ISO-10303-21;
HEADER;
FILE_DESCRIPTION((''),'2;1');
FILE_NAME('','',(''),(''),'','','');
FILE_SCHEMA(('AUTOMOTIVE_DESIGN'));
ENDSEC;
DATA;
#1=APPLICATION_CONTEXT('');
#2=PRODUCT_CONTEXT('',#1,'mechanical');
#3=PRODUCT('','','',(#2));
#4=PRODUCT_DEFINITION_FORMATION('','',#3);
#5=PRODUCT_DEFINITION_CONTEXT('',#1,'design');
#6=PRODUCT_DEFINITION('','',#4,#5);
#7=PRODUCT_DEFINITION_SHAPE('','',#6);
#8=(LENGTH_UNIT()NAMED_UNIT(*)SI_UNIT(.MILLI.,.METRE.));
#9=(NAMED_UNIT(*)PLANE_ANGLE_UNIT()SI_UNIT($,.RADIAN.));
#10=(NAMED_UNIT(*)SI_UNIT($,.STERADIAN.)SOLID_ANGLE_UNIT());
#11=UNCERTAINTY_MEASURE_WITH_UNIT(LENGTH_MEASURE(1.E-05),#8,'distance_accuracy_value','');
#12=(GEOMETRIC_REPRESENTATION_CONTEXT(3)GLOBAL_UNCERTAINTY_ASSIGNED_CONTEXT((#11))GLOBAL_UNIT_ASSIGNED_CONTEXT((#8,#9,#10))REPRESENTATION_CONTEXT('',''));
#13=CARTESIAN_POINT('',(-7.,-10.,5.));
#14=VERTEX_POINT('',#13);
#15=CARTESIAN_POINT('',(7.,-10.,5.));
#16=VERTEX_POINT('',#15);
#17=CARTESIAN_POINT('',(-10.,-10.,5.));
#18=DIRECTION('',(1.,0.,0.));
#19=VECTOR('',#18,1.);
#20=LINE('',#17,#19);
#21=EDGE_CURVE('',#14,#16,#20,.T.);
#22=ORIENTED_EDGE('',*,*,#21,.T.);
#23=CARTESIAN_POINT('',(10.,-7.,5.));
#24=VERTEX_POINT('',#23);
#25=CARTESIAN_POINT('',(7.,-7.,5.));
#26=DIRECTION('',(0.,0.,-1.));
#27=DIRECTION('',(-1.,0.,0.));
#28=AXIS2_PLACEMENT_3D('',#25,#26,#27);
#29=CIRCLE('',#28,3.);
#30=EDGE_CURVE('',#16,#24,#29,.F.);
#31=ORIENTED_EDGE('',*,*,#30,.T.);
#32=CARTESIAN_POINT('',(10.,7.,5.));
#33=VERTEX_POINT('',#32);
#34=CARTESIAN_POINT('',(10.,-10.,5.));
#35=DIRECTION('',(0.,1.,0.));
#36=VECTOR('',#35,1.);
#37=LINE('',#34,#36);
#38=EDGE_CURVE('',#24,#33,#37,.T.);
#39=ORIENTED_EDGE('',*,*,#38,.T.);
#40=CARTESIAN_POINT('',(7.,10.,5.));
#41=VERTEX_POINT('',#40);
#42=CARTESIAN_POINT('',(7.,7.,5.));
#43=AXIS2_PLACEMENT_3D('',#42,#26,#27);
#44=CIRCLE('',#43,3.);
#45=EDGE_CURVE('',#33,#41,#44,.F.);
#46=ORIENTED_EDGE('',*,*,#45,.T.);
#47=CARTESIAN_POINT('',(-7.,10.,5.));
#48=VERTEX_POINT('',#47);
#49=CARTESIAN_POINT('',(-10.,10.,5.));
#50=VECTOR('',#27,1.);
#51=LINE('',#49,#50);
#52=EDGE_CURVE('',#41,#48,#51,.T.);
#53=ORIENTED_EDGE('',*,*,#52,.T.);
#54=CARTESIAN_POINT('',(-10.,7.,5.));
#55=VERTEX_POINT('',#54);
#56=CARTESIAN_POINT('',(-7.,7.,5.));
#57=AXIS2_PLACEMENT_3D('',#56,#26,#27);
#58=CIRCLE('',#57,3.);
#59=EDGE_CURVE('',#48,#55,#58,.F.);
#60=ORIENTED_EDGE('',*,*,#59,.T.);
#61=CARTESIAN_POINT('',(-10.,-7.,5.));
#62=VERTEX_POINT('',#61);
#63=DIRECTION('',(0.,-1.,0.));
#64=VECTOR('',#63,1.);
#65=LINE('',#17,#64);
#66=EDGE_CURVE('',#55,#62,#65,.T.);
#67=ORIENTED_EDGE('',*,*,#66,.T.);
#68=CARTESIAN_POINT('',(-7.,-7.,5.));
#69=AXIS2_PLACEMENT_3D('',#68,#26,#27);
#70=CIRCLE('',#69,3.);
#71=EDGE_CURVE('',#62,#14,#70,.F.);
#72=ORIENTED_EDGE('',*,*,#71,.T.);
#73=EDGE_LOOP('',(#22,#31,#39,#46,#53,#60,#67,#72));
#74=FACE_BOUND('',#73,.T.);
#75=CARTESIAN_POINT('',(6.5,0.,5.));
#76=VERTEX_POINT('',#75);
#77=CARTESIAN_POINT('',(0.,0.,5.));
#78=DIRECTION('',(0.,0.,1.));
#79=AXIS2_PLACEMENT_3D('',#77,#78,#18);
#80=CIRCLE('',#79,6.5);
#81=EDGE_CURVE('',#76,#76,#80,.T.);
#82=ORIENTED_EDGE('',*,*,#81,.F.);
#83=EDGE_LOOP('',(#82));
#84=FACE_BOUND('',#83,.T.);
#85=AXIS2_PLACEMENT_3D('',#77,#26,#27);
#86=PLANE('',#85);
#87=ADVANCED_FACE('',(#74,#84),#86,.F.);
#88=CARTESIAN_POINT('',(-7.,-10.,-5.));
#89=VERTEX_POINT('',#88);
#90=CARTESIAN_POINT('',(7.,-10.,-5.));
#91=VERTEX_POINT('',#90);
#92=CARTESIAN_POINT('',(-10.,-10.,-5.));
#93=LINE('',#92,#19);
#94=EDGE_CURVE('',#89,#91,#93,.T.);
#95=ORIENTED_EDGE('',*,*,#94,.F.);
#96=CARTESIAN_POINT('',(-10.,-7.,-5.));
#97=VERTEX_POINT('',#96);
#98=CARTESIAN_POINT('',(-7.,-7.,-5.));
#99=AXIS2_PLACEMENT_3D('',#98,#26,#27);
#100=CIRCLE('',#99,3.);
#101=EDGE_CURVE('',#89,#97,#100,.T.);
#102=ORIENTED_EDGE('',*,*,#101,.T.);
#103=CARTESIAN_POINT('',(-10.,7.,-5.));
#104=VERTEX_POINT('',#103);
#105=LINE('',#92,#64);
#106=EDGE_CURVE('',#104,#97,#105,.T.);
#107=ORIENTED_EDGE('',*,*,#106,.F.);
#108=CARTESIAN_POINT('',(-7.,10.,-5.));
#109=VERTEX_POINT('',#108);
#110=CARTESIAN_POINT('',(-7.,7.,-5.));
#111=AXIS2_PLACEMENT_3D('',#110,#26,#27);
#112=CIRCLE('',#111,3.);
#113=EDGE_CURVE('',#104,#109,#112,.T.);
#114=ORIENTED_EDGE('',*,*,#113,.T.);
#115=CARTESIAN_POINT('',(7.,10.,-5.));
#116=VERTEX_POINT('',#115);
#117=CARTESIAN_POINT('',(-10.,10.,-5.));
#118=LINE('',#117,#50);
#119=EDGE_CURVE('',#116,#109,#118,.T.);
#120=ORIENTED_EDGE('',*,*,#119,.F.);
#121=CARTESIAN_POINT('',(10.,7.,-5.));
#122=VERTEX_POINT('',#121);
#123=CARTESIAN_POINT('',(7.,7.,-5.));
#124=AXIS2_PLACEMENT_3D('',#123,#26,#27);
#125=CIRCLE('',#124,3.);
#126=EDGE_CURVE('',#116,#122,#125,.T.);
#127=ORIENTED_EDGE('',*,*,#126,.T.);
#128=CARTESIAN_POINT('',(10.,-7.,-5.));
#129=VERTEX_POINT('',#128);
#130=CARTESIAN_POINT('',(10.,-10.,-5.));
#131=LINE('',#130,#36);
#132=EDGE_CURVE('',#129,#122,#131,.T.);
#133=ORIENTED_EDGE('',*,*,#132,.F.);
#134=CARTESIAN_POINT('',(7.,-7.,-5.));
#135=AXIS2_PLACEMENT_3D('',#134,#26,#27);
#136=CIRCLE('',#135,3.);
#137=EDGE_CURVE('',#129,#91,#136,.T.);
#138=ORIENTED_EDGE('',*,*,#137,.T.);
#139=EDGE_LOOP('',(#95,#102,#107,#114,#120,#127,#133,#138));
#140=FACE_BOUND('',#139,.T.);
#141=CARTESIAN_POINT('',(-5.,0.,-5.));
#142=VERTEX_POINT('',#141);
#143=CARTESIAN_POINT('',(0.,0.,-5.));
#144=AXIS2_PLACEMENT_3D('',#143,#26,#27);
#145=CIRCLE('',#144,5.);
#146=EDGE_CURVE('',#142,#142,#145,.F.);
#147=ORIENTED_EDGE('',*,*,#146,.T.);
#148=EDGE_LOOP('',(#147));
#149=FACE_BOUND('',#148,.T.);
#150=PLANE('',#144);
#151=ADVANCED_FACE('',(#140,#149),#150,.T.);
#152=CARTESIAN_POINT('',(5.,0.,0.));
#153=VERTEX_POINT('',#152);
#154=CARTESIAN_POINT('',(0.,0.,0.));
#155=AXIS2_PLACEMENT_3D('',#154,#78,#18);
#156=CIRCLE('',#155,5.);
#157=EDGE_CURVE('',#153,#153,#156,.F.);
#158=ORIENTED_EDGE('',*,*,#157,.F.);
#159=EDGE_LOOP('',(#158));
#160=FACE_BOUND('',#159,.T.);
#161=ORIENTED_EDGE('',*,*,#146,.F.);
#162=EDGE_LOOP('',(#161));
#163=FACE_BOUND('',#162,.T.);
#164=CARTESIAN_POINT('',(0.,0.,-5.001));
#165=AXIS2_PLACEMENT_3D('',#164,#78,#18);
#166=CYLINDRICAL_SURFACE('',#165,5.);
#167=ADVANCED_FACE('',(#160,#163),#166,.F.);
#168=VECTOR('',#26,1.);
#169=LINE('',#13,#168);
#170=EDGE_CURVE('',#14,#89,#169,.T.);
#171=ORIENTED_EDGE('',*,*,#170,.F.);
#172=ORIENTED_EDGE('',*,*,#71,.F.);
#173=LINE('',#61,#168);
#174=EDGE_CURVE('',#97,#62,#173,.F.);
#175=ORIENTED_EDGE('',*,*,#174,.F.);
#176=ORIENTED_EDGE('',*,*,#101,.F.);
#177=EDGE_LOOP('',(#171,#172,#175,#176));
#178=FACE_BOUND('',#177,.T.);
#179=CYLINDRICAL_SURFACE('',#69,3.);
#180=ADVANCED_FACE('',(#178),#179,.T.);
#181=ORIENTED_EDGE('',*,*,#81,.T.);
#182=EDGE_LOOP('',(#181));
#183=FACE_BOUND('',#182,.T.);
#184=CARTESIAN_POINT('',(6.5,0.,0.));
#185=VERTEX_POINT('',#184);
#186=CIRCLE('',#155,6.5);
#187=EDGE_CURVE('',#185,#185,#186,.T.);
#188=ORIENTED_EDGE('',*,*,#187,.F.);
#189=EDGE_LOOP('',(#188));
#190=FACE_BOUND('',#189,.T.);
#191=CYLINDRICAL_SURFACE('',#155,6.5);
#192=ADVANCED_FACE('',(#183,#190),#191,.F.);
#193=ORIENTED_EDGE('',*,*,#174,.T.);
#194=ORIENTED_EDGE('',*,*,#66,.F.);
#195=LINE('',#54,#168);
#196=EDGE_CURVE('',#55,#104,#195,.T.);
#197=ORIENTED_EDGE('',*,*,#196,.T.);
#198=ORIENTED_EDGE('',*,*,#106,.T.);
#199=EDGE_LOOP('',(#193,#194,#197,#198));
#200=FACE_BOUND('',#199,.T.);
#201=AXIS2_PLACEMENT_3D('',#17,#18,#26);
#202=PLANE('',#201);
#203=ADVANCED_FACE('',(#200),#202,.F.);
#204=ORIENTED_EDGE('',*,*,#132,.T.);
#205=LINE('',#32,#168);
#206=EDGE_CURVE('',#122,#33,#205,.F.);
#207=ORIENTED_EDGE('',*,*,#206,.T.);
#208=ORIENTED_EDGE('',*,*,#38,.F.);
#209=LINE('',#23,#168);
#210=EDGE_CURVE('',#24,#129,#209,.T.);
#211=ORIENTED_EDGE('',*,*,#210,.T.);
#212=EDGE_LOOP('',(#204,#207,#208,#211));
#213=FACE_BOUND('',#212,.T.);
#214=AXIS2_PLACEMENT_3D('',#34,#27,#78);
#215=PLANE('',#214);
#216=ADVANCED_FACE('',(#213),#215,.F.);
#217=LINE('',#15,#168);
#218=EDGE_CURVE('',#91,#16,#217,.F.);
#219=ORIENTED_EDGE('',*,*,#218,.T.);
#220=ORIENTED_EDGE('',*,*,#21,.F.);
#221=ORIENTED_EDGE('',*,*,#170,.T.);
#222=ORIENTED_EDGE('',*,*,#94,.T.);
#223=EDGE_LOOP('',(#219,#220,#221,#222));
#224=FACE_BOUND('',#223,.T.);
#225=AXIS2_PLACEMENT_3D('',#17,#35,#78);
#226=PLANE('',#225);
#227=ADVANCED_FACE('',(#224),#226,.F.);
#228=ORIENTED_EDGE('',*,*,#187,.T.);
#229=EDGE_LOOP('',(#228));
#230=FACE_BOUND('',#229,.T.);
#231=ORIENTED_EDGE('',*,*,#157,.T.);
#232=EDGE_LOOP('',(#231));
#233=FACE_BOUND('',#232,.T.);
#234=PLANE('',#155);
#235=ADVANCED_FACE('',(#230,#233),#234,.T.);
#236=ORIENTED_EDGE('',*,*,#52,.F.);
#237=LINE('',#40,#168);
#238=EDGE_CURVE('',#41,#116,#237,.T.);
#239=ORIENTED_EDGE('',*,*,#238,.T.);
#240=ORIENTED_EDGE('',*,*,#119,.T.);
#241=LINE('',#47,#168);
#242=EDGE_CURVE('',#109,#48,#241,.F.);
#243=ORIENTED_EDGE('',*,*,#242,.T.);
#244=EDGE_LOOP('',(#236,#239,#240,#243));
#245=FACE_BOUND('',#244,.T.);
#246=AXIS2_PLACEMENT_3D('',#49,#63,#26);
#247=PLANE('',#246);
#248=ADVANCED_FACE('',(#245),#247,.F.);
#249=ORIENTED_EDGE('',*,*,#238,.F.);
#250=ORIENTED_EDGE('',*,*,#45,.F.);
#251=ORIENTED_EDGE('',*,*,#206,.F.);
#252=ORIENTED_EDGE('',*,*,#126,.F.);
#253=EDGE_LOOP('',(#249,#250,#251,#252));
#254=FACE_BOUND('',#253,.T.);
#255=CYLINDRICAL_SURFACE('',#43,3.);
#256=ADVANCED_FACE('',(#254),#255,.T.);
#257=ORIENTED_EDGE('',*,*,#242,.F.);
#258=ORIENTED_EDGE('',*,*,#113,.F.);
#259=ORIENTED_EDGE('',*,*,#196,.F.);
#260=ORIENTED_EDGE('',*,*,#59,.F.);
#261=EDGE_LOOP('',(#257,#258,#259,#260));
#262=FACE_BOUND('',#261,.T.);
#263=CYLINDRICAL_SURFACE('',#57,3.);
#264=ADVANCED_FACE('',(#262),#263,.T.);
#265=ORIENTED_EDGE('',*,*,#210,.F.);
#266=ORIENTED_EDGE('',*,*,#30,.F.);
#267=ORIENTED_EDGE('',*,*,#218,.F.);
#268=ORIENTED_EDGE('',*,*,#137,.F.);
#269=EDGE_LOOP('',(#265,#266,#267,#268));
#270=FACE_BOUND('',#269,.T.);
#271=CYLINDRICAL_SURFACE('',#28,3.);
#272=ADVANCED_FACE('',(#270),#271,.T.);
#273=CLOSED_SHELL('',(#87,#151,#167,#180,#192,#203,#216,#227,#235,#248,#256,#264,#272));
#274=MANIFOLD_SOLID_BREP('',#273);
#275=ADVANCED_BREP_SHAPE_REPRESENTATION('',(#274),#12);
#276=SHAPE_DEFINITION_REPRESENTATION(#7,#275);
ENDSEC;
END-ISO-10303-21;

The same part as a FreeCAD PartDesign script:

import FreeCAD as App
import Part
import Sketcher
from FreeCAD import Vector
Q = App.Units.Quantity


def edges_at(feature, points):
    """Names of the edges that pass closest to the given points."""
    edges = feature.Shape.Edges
    near = lambda p: min(range(len(edges)), key=lambda i: edges[i].distToShape(Part.Vertex(*p))[0])
    return sorted({f"Edge{near(p) + 1}" for p in points})


def add_polygon(sketch, points):
    """Adds a closed chain of lines whose ends are joined by coincident constraints."""
    first, n = sketch.GeometryCount, len(points)
    for a, b in zip(points, points[1:] + points[:1]):
        sketch.addGeometry(Part.LineSegment(App.Vector(*a, 0), App.Vector(*b, 0)), False)
    for i in range(n):
        sketch.addConstraint(Sketcher.Constraint("Coincident", first + i, 2, first + (i + 1) % n, 1))

doc = App.newDocument("Part")
body = doc.addObject("PartDesign::Body", "Body")

sketch1 = doc.addObject("Sketcher::SketchObject", "Sketch")
body.addObject(sketch1)
sketch1.AttachmentSupport = (doc.XY_Plane, [""])
sketch1.MapMode = "FlatFace"
add_polygon(sketch1, [(-10, 10), (-10, -10), (10, -10), (10, 10)])
sketch1.addConstraint([
    Sketcher.Constraint("Vertical", 0),
    Sketcher.Constraint("Horizontal", 1),
    Sketcher.Constraint("Vertical", 2),
    Sketcher.Constraint("Horizontal", 3),
    Sketcher.Constraint("Symmetric", 0, 2, 2, 2, -1, 1),
    Sketcher.Constraint("Equal", 3, 0),
    Sketcher.Constraint("DistanceX", 1, 1, 1, 2, Q("20 mm")),
])
pad1 = doc.addObject("PartDesign::Pad", "Pad")
body.addObject(pad1)
pad1.Profile = sketch1
pad1.Length = 10
pad1.Midplane = True
doc.recompute()

fillet = doc.addObject("PartDesign::Fillet", "Fillet")
body.addObject(fillet)
fillet.Base = (pad1, edges_at(pad1, [
    (10, -10, 0),
    (-10, -10, 0),
    (-10, 10, 0),
    (10, 10, 0),
]))
fillet.Radius = 3

sketch2 = doc.addObject("Sketcher::SketchObject", "Sketch001")
body.addObject(sketch2)
sketch2.AttachmentSupport = (doc.XY_Plane, [""])
sketch2.MapMode = "FlatFace"
sketch2.AttachmentOffset = App.Placement(Vector(0, 0, 5), App.Rotation())
sketch2.addGeometry(Part.Circle(Vector(0, 0, 0), Vector(0, 0, 1), 5), False)
sketch2.addConstraint([
    Sketcher.Constraint("Coincident", 0, 3, -1, 1),
    Sketcher.Constraint("Diameter", 0, Q("10 mm")),
])
pocket1 = doc.addObject("PartDesign::Pocket", "Pocket")
body.addObject(pocket1)
pocket1.Profile = sketch2
pocket1.Type = "UpToFirst"

sketch3 = doc.addObject("Sketcher::SketchObject", "Sketch002")
body.addObject(sketch3)
sketch3.AttachmentSupport = (doc.XY_Plane, [""])
sketch3.MapMode = "FlatFace"
sketch3.AttachmentOffset = App.Placement(Vector(0, 0, 5), App.Rotation())
sketch3.addGeometry(Part.Circle(Vector(0, 0, 0), Vector(0, 0, 1), 6), False)
sketch3.addConstraint([
    Sketcher.Constraint("Coincident", 0, 3, -1, 1),
    Sketcher.Constraint("Diameter", 0, Q("13 mm")),
])
pocket2 = doc.addObject("PartDesign::Pocket", "Pocket001")
body.addObject(pocket2)
pocket2.Profile = sketch3
pocket2.Length = 5

doc.recompute()
